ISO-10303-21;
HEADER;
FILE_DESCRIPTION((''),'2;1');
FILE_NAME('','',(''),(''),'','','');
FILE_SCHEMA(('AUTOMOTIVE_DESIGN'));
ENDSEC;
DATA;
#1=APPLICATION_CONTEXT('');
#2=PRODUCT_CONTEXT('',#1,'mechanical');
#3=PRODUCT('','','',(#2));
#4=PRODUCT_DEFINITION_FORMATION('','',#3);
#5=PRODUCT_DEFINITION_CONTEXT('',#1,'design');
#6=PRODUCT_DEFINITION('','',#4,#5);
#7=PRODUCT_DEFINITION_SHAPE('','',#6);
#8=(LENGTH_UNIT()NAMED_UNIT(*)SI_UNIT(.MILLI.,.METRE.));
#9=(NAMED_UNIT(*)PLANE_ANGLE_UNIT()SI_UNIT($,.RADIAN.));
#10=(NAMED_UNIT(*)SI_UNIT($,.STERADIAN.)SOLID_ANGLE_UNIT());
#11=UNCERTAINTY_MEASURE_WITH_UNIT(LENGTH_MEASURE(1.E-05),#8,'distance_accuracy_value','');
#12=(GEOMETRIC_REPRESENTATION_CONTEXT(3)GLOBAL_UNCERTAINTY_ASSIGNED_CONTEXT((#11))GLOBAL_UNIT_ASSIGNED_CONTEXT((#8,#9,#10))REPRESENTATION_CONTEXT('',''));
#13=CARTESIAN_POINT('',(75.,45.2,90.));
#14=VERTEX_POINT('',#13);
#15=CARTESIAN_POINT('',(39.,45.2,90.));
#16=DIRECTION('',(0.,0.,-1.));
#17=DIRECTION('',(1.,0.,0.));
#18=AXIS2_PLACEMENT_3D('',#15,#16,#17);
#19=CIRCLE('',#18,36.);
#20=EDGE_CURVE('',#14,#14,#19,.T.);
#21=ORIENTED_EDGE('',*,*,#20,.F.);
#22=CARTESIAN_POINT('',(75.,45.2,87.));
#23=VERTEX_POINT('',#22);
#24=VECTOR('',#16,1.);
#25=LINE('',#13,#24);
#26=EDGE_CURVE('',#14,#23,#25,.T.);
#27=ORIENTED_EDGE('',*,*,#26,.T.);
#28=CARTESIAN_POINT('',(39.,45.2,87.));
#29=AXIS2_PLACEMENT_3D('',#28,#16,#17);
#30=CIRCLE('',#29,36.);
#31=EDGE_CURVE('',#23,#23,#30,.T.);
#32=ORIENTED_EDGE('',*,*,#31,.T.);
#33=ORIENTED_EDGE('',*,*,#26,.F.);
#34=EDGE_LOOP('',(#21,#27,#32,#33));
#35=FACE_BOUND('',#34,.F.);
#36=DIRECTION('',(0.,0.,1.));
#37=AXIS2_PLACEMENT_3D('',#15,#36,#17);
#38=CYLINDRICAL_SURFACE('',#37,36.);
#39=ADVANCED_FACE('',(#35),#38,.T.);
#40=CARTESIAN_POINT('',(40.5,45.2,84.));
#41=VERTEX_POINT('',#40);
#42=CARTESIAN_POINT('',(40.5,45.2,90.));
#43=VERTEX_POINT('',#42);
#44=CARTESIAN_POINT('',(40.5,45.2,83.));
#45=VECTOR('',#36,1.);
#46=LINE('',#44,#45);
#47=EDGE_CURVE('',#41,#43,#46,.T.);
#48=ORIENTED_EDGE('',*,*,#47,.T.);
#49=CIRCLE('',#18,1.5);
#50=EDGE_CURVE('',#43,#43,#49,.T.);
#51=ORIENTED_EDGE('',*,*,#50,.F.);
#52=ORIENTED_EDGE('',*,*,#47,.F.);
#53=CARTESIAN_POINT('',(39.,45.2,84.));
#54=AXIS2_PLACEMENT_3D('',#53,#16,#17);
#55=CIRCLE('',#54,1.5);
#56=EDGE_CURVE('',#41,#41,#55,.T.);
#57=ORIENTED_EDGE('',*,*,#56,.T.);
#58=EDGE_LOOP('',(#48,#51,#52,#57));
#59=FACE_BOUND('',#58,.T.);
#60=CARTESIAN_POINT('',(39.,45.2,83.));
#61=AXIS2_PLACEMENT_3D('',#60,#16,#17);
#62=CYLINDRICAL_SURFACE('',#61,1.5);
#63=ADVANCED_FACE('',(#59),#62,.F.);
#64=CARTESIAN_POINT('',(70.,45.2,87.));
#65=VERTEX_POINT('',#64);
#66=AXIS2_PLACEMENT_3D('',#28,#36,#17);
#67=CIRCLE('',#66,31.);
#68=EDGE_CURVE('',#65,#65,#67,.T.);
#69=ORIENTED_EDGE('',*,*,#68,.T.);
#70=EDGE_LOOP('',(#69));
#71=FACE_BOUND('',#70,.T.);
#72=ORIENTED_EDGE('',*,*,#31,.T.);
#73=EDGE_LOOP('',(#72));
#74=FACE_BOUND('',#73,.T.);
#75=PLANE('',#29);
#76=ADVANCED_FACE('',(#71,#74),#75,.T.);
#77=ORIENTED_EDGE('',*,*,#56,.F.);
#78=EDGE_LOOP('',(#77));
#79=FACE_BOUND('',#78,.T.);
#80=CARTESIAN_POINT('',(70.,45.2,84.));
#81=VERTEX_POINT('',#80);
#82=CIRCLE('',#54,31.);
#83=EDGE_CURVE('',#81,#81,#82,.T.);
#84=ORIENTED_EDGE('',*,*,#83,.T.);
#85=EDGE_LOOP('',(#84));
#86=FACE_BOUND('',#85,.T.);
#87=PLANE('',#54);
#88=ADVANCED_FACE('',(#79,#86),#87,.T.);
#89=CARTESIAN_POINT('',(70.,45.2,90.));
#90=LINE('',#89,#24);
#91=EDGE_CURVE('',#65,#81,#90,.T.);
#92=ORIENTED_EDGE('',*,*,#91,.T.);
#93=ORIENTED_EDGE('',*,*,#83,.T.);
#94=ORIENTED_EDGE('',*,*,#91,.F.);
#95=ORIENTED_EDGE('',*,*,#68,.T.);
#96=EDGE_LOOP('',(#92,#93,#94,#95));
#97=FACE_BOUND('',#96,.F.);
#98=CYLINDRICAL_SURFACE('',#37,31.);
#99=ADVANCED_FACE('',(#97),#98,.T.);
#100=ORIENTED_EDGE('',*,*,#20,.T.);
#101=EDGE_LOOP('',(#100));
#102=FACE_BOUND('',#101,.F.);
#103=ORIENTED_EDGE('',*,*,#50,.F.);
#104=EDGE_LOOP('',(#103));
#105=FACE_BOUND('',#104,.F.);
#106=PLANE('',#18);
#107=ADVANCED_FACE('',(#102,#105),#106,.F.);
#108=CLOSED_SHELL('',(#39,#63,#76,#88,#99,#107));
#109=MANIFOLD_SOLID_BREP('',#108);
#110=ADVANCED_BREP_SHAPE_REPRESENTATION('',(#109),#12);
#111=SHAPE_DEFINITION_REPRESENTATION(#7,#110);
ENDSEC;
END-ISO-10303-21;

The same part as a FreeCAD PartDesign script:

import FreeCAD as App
import Part
import Sketcher

V = App.Vector

doc = App.newDocument("Part")
params = doc.addObject("Spreadsheet::Sheet", "Params")
for row, (alias, value) in enumerate([
    ("sketch1_diameter", "3 mm"),
    ("pad1_length", "10 mm"),
    ("sketch2_diameter", "62 mm"),
    ("pad2_length", "6 mm"),
    ("sketch3_diameter", "72 mm"),
    ("pad3_length", "3 mm"),
], start=1):
    params.set(f"A{row}", alias)
    params.set(f"B{row}", "=" + value)
    params.setAlias(f"B{row}", alias)

body = doc.addObject("PartDesign::Body", "Body")

# Sketch on XY plane
sketch1 = doc.addObject("Sketcher::SketchObject", "Sketch")
body.addObject(sketch1)
sketch1.AttachmentSupport = (doc.XY_Plane, [""])
sketch1.MapMode = "FlatFace"
sketch1.AttachmentOffset = App.Placement(V(0, 0, 83), App.Rotation())
sketch1.addGeometry(Part.Circle(V(39, 45.2, 0), V(0, 0, 1), 1.5), False)
sketch1.addConstraint([
    Sketcher.Constraint("Diameter", 0, 3.0),
    Sketcher.Constraint("DistanceX", -1, 1, 0, 3, 39.0),
    Sketcher.Constraint("DistanceY", -1, 1, 0, 3, 45.2),
])
sketch1.setExpression("Constraints[0]", "Params.sketch1_diameter")
pad1 = doc.addObject("PartDesign::Pad", "Pad")
body.addObject(pad1)
pad1.Profile = sketch1
pad1.setExpression("Length", "Params.pad1_length")
body2 = doc.addObject("PartDesign::Body", "Body001")

# Sketch on XY plane
sketch2 = doc.addObject("Sketcher::SketchObject", "Sketch001")
body2.addObject(sketch2)
sketch2.AttachmentSupport = (doc.getObject("XY_Plane001"), [""])
sketch2.MapMode = "FlatFace"
sketch2.addGeometry(Part.Circle(V(0, 0, 0), V(0, 0, 1), 31), False)
sketch2.addConstraint([
    Sketcher.Constraint("Coincident", 0, 3, -1, 1),
    Sketcher.Constraint("Diameter", 0, 62.0),
])
sketch2.setExpression("Constraints[1]", "Params.sketch2_diameter")
pad2 = doc.addObject("PartDesign::Pad", "Pad001")
body2.addObject(pad2)
pad2.Profile = sketch2
pad2.setExpression("Length", "Params.pad2_length")
body3 = doc.addObject("PartDesign::Body", "Body002")

# Sketch on XY plane
sketch3 = doc.addObject("Sketcher::SketchObject", "Sketch002")
body3.addObject(sketch3)
sketch3.AttachmentSupport = (doc.getObject("XY_Plane002"), [""])
sketch3.MapMode = "FlatFace"
sketch3.addGeometry(Part.Circle(V(0, 0, 0), V(0, 0, 1), 36), False)
sketch3.addConstraint([
    Sketcher.Constraint("Coincident", 0, 3, -1, 1),
    Sketcher.Constraint("Diameter", 0, 72.0),
])
sketch3.setExpression("Constraints[1]", "Params.sketch3_diameter")
pad3 = doc.addObject("PartDesign::Pad", "Pad002")
body3.addObject(pad3)
pad3.Profile = sketch3
pad3.setExpression("Length", "Params.pad3_length")
doc.recompute()

boolean = doc.addObject("PartDesign::Boolean", "Boolean")
body3.addObject(boolean)
boolean.Type = "Fuse"
boolean.addObjects([body2])
body4 = doc.addObject("PartDesign::Body", "Body003")
doc.recompute()

body3.Placement = App.Placement(V(39, 45.2, 90), App.Rotation(V(1, 0, 0), 180))
boolean2 = doc.addObject("PartDesign::Boolean", "Boolean001")
body4.addObject(boolean2)
boolean2.Type = "Fuse"
boolean2.addObjects([body3])
doc.recompute()

boolean3 = doc.addObject("PartDesign::Boolean", "Boolean002")
body4.addObject(boolean3)
boolean3.Type = "Cut"
boolean3.addObjects([body])

doc.recompute()
